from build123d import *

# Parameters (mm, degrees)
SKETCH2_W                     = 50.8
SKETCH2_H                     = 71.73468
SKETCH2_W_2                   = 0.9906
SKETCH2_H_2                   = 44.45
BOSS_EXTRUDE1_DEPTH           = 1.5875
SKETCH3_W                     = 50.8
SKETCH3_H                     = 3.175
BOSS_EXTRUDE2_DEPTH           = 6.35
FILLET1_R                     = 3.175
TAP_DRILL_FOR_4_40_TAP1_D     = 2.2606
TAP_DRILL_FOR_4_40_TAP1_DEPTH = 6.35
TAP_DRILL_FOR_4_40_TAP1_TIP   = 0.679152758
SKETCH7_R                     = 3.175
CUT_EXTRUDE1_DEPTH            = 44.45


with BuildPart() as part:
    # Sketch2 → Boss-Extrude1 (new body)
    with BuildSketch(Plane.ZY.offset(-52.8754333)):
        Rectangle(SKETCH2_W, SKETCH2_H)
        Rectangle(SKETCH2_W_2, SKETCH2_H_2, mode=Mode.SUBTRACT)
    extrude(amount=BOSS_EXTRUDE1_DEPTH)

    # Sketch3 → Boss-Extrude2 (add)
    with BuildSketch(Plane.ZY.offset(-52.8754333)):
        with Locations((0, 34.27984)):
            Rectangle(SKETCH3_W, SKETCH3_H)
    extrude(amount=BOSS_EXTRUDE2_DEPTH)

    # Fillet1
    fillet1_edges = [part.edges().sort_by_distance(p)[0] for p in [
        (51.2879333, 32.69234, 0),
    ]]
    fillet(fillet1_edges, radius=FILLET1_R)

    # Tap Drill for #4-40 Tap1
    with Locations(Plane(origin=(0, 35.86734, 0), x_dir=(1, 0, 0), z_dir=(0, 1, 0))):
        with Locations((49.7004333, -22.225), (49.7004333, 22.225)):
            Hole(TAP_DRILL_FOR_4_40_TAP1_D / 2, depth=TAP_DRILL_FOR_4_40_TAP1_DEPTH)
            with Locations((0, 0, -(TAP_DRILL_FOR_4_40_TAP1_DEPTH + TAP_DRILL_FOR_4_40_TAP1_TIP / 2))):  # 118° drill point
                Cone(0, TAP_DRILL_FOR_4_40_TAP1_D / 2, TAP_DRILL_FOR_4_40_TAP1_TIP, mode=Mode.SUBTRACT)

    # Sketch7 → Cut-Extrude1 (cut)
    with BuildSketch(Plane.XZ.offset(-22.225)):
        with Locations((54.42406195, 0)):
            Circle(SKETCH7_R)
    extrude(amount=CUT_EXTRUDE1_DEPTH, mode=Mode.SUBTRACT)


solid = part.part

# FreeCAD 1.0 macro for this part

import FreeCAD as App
import Part
import Sketcher
from FreeCAD import Vector
Q = App.Units.Quantity


def edges_at(feature, points):
    """Names of the edges that pass closest to the given points."""
    edges = feature.Shape.Edges
    near = lambda p: min(range(len(edges)), key=lambda i: edges[i].distToShape(Part.Vertex(*p))[0])
    return sorted({f"Edge{near(p) + 1}" for p in points})


def add_polygon(sketch, points):
    """Adds a closed chain of lines whose ends are joined by coincident constraints."""
    first, n = sketch.GeometryCount, len(points)
    for a, b in zip(points, points[1:] + points[:1]):
        sketch.addGeometry(Part.LineSegment(App.Vector(*a, 0), App.Vector(*b, 0)), False)
    for i in range(n):
        sketch.addConstraint(Sketcher.Constraint("Coincident", first + i, 2, first + (i + 1) % n, 1))

doc = App.newDocument("Part")
body = doc.addObject("PartDesign::Body", "Body")

sketch1 = body.newObject("Sketcher::SketchObject", "Sketch")
sketch1.AttachmentSupport = (doc.getObject("YZ_Plane"), [""])
sketch1.MapMode = "FlatFace"
sketch1.AttachmentOffset = App.Placement(Vector(0, 0, 52.875433), App.Rotation())
add_polygon(sketch1, [(35.9, -25.4), (-35.9, -25.4), (-35.9, 25.4), (35.9, 25.4)])
add_polygon(sketch1, [(-22.2, 0.5), (-22.2, -0.5), (22.2, -0.5), (22.2, 0.5)])
sketch1.addConstraint([
    Sketcher.Constraint("Horizontal", 0),
    Sketcher.Constraint("Vertical", 1),
    Sketcher.Constraint("Horizontal", 2),
    Sketcher.Constraint("Vertical", 3),
    Sketcher.Constraint("Vertical", 4),
    Sketcher.Constraint("Horizontal", 5),
    Sketcher.Constraint("Vertical", 6),
    Sketcher.Constraint("Horizontal", 7),
    Sketcher.Constraint("Symmetric", 0, 2, 2, 2, -1, 1),
    Sketcher.Constraint("Symmetric", 4, 2, 6, 2, -1, 1),
    Sketcher.Constraint("DistanceY", 1, 1, 1, 2, Q("2 in")),
    Sketcher.Constraint("DistanceX", 5, 1, 5, 2, Q("1.75 in")),
    Sketcher.Constraint("DistanceY", 4, 2, 4, 1, Q("0.039 in")),
    Sketcher.Constraint("DistanceX", 0, 2, 0, 1, Q("2.8242 in")),
])
pad1 = body.newObject("PartDesign::Pad", "Pad")
pad1.Profile = sketch1
pad1.Length = Q("0.0625 in")
pad1.Reversed = True

sketch2 = body.newObject("Sketcher::SketchObject", "Sketch001")
sketch2.AttachmentSupport = (doc.getObject("YZ_Plane"), [""])
sketch2.MapMode = "FlatFace"
sketch2.AttachmentOffset = App.Placement(Vector(0, 0, 52.875433), App.Rotation())
add_polygon(sketch2, [(35.9, -25.4), (32.7, -25.4), (32.7, 25.4), (35.9, 25.4)])
sketch2.addConstraint([
    Sketcher.Constraint("Horizontal", 0),
    Sketcher.Constraint("Vertical", 1),
    Sketcher.Constraint("Horizontal", 2),
    Sketcher.Constraint("Vertical", 3),
    Sketcher.Constraint("DistanceY", 1, 1, 1, 2, Q("2 in")),
    Sketcher.Constraint("DistanceY", 0, 2, -1, 1, Q("1 in")),
    Sketcher.Constraint("DistanceX", 0, 2, 0, 1, Q("0.125 in")),
    Sketcher.Constraint("DistanceX", -1, 1, 0, 2, Q("1.2871 in")),
])
pad2 = body.newObject("PartDesign::Pad", "Pad001")
pad2.Profile = sketch2
pad2.Length = Q("0.25 in")
pad2.Reversed = True
doc.recompute()

fillet = body.newObject("PartDesign::Fillet", "Fillet")
fillet.Base = (pad2, edges_at(pad2, [(51.288, 32.692, 0)]))
fillet.Radius = Q("0.125 in")

sketch3 = body.newObject("Sketcher::SketchObject", "Sketch002")
sketch3.AttachmentSupport = (doc.getObject("XZ_Plane"), [""])
sketch3.MapMode = "FlatFace"
sketch3.AttachmentOffset = App.Placement(Vector(0, 0, -1.4121 * 25.4), App.Rotation())
sketch3.addGeometry([
    Part.Circle(Vector(49.7, 22.2, 0), Vector(0, 0, 1), 1.1),
    Part.Circle(Vector(49.7, -22.2, 0), Vector(0, 0, 1), 1.1),
], False)
sketch3.addConstraint([
    Sketcher.Constraint("Equal", 0, 1),
    Sketcher.Constraint("Symmetric", 0, 3, 1, 3, -1),
    Sketcher.Constraint("Diameter", 0, Q("0.089 in")),
    Sketcher.Constraint("DistanceY", 1, 3, 0, 3, Q("1.75 in")),
    Sketcher.Constraint("DistanceX", -1, 1, 0, 3, Q("49.700433 mm")),
])
doc.recompute()
hole = body.newObject("PartDesign::Hole", "Hole")
hole.Profile = sketch3
hole.ThreadType = "None"
hole.Diameter = Q("0.089 in")
hole.DepthType = "Dimension"
hole.Depth = Q("0.25 in")
hole.DrillPoint = "Angled"
hole.DrillPointAngle = 118
hole.Reversed = True

sketch4 = body.newObject("Sketcher::SketchObject", "Sketch003")
sketch4.AttachmentSupport = (doc.getObject("XZ_Plane"), [""])
sketch4.MapMode = "FlatFace"
sketch4.AttachmentOffset = App.Placement(Vector(0, 0, -0.875 * 25.4), App.Rotation())
sketch4.addGeometry(Part.Circle(Vector(54.4, 0, 0), Vector(0, 0, 1), 3.2), False)
sketch4.addConstraint([
    Sketcher.Constraint("PointOnObject", 0, 3, -1),
    Sketcher.Constraint("Diameter", 0, Q("0.25 in")),
    Sketcher.Constraint("DistanceX", -1, 1, 0, 3, Q("54.424062 mm")),
])
pocket1 = body.newObject("PartDesign::Pocket", "Pocket")
pocket1.Profile = sketch4
pocket1.Length = Q("1.75 in")
pocket1.Reversed = True

doc.recompute()
